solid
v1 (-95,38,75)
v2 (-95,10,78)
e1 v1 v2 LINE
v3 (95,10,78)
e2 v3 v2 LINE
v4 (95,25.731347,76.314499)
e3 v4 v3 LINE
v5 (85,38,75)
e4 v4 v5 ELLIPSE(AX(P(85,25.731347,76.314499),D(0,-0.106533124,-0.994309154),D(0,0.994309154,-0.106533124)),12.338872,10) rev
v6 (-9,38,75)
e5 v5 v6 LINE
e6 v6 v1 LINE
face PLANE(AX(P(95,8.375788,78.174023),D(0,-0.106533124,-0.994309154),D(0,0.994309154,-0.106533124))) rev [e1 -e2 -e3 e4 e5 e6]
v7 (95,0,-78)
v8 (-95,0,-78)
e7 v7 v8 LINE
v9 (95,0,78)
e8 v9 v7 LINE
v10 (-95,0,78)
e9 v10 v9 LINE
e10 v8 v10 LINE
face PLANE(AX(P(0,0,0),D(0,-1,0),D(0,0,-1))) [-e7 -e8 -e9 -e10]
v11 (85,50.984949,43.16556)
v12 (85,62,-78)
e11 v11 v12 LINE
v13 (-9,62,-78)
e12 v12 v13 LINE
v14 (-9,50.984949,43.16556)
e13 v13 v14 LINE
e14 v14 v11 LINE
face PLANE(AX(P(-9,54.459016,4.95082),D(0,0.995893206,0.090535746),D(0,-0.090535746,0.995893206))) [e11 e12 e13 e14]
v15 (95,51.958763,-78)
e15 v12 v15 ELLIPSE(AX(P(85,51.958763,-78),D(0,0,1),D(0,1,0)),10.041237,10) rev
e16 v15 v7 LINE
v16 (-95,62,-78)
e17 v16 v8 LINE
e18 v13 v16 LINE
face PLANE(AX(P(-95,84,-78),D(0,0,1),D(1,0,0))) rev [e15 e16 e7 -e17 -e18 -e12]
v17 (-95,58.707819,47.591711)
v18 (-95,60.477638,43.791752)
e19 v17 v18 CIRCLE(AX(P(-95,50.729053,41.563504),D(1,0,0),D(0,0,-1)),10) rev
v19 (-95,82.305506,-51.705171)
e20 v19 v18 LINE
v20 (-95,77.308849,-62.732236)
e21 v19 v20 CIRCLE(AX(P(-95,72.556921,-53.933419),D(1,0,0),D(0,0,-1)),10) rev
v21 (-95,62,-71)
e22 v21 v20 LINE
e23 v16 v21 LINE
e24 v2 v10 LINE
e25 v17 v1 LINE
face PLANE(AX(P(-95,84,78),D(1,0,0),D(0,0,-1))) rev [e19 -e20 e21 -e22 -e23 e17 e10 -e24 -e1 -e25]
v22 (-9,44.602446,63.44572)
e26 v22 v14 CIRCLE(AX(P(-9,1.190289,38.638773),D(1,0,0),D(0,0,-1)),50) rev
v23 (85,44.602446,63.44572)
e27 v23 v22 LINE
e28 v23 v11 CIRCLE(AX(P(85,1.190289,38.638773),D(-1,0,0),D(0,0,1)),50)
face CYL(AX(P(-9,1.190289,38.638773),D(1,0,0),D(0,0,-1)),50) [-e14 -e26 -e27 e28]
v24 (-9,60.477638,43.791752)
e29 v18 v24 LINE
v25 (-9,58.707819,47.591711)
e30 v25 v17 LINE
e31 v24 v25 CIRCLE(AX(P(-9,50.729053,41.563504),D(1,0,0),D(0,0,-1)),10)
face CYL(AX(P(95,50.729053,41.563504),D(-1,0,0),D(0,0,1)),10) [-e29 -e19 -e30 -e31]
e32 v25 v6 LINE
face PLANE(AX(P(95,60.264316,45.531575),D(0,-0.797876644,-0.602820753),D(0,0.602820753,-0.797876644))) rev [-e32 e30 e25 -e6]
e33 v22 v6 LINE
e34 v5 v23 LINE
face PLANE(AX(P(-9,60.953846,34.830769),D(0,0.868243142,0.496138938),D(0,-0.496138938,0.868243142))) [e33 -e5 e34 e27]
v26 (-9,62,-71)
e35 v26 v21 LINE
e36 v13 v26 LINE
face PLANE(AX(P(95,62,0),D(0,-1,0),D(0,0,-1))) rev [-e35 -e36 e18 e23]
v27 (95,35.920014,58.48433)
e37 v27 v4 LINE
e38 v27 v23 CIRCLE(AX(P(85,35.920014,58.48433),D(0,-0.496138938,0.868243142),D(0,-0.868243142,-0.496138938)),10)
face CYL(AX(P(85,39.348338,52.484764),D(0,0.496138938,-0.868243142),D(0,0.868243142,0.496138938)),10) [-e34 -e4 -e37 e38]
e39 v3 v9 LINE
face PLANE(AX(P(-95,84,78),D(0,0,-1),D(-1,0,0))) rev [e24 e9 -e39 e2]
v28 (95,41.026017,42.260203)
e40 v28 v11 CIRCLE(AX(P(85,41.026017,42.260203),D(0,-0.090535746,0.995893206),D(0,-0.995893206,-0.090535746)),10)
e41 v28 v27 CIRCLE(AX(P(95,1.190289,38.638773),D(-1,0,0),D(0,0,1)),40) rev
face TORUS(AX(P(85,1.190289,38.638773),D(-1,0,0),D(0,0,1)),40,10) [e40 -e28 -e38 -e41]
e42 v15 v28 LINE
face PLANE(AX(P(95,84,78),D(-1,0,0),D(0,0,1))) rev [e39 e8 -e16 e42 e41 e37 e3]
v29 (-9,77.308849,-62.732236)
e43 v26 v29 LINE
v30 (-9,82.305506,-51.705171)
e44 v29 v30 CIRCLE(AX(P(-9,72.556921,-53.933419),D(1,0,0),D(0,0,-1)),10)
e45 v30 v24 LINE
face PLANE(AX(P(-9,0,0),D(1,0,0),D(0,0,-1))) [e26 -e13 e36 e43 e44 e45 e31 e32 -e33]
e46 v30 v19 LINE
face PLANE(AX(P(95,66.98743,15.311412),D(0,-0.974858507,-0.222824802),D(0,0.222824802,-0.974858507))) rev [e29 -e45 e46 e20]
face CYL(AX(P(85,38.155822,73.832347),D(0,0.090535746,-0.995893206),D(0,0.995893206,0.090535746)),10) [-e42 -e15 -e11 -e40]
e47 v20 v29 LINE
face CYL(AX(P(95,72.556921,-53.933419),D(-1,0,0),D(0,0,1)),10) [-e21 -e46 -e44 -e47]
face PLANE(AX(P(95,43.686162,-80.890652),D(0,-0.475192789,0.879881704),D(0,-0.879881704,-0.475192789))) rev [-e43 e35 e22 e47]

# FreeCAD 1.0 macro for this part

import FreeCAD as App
import Part
import Sketcher
from FreeCAD import Vector
Q = App.Units.Quantity


def edges_at(feature, points):
    """Names of the edges that pass closest to the given points."""
    edges = feature.Shape.Edges
    near = lambda p: min(range(len(edges)), key=lambda i: edges[i].distToShape(Part.Vertex(*p))[0])
    return sorted({f"Edge{near(p) + 1}" for p in points})

doc = App.newDocument("Part")
body = doc.addObject("PartDesign::Body", "Body")

sketch1 = body.newObject("Sketcher::SketchObject", "Sketch")
sketch1.AttachmentSupport = (doc.getObject("XZ_Plane"), [""])
sketch1.MapMode = "FlatFace"
sketch1.addGeometry([
    Part.LineSegment(Vector(-95, -78, 0), Vector(-95, 78, 0)),
    Part.LineSegment(Vector(-95, 78, 0), Vector(95, 78, 0)),
    Part.LineSegment(Vector(95, 78, 0), Vector(95, -78, 0)),
    Part.LineSegment(Vector(95, -78, 0), Vector(-95, -78, 0)),
], False)
sketch1.addConstraint([
    Sketcher.Constraint("Coincident", 0, 2, 1, 1),
    Sketcher.Constraint("Coincident", 1, 2, 2, 1),
    Sketcher.Constraint("Coincident", 2, 2, 3, 1),
    Sketcher.Constraint("Coincident", 3, 2, 0, 1),
    Sketcher.Constraint("Vertical", 0),
    Sketcher.Constraint("Horizontal", 1),
    Sketcher.Constraint("Vertical", 2),
    Sketcher.Constraint("Horizontal", 3),
    Sketcher.Constraint("Symmetric", 0, 2, 2, 2, -1, 1),
    Sketcher.Constraint("DistanceX", 1, 1, 1, 2, Q("190 mm")),
    Sketcher.Constraint("DistanceY", 0, 1, 0, 2, Q("156 mm")),
])
pad1 = body.newObject("PartDesign::Pad", "Pad")
pad1.Profile = sketch1
pad1.Length = 84
pad1.Reversed = True

sketch2 = body.newObject("Sketcher::SketchObject", "Sketch001")
sketch2.AttachmentSupport = (doc.getObject("YZ_Plane"), [""])
sketch2.MapMode = "FlatFace"
sketch2.AttachmentOffset = App.Placement(Vector(0, 0, -95), App.Rotation())
sketch2.addGeometry([
    Part.LineSegment(Vector(84, -78, 0), Vector(62, -78, 0)),
    Part.LineSegment(Vector(62, -78, 0), Vector(62, -71, 0)),
    Part.LineSegment(Vector(62, -71, 0), Vector(84, -59, 0)),
    Part.LineSegment(Vector(84, -59, 0), Vector(84, -78, 0)),
    Part.LineSegment(Vector(84, 78, 0), Vector(84, -59, 0)),
    Part.LineSegment(Vector(84, -59, 0), Vector(60, 46, 0)),
    Part.LineSegment(Vector(60, 46, 0), Vector(38, 75, 0)),
    Part.LineSegment(Vector(38, 75, 0), Vector(10, 78, 0)),
    Part.LineSegment(Vector(10, 78, 0), Vector(84, 78, 0)),
], False)
sketch2.addConstraint([
    Sketcher.Constraint("Coincident", 0, 2, 1, 1),
    Sketcher.Constraint("Coincident", 1, 2, 2, 1),
    Sketcher.Constraint("Coincident", 2, 2, 3, 1),
    Sketcher.Constraint("Coincident", 3, 2, 0, 1),
    Sketcher.Constraint("Coincident", 4, 2, 5, 1),
    Sketcher.Constraint("Coincident", 5, 2, 6, 1),
    Sketcher.Constraint("Coincident", 6, 2, 7, 1),
    Sketcher.Constraint("Coincident", 7, 2, 8, 1),
    Sketcher.Constraint("Coincident", 8, 2, 4, 1),
    Sketcher.Constraint("Horizontal", 0),
    Sketcher.Constraint("Vertical", 1),
    Sketcher.Constraint("Vertical", 3),
    Sketcher.Constraint("Vertical", 4),
    Sketcher.Constraint("Horizontal", 8),
    Sketcher.Constraint("Coincident", 4, 2, 2, 2),
    Sketcher.Constraint("DistanceX", 0, 2, 0, 1, Q("22 mm")),
    Sketcher.Constraint("DistanceX", 8, 1, 8, 2, Q("74 mm")),
    Sketcher.Constraint("DistanceY", 1, 1, 1, 2, Q("7 mm")),
    Sketcher.Constraint("DistanceX", -1, 1, 0, 2, Q("62 mm")),
    Sketcher.Constraint("DistanceY", 0, 2, -1, 1, Q("78 mm")),
    Sketcher.Constraint("DistanceX", -1, 1, 5, 2, Q("60 mm")),
    Sketcher.Constraint("DistanceX", -1, 1, 6, 2, Q("38 mm")),
    Sketcher.Constraint("DistanceY", -1, 1, 6, 2, Q("75 mm")),
    Sketcher.Constraint("DistanceY", -1, 1, 7, 2, Q("78 mm")),
    Sketcher.Constraint("DistanceY", 2, 2, 5, 2, Q("105 mm")),
    Sketcher.Constraint("Distance", 2, Q("25.003361 mm")),
])
pocket1 = body.newObject("PartDesign::Pocket", "Pocket")
pocket1.Profile = sketch2
pocket1.Type = "ThroughAll"
pocket1.Reversed = True

sketch3 = body.newObject("Sketcher::SketchObject", "Sketch002")
sketch3.AttachmentSupport = (doc.getObject("YZ_Plane"), [""])
sketch3.MapMode = "FlatFace"
sketch3.AttachmentOffset = App.Placement(Vector(0, 0, 95), App.Rotation())
sketch3.addGeometry([
    Part.LineSegment(Vector(38, 75, 0), Vector(50, 54, 0)),
    Part.LineSegment(Vector(50, 54, 0), Vector(62, -78, 0)),
    Part.LineSegment(Vector(62, -78, 0), Vector(62, -71, 0)),
    Part.LineSegment(Vector(62, -71, 0), Vector(84, -59, 0)),
    Part.LineSegment(Vector(84, -59, 0), Vector(60, 46, 0)),
    Part.LineSegment(Vector(60, 46, 0), Vector(38, 75, 0)),
], False)
sketch3.addConstraint([
    Sketcher.Constraint("Coincident", 0, 2, 1, 1),
    Sketcher.Constraint("Coincident", 1, 2, 2, 1),
    Sketcher.Constraint("Coincident", 2, 2, 3, 1),
    Sketcher.Constraint("Coincident", 3, 2, 4, 1),
    Sketcher.Constraint("Coincident", 4, 2, 5, 1),
    Sketcher.Constraint("Coincident", 5, 2, 0, 1),
    Sketcher.Constraint("Vertical", 2),
    Sketcher.Constraint("DistanceY", 2, 1, 2, 2, Q("7 mm")),
    Sketcher.Constraint("DistanceX", -1, 1, 0, 2, Q("50 mm")),
    Sketcher.Constraint("DistanceY", -1, 1, 0, 2, Q("54 mm")),
    Sketcher.Constraint("DistanceX", -1, 1, 1, 2, Q("62 mm")),
    Sketcher.Constraint("DistanceY", 1, 2, -1, 1, Q("78 mm")),
    Sketcher.Constraint("DistanceX", -1, 1, 3, 2, Q("84 mm")),
    Sketcher.Constraint("DistanceX", -1, 1, 4, 2, Q("60 mm")),
    Sketcher.Constraint("DistanceX", -1, 1, 5, 2, Q("38 mm")),
    Sketcher.Constraint("DistanceY", -1, 1, 5, 2, Q("75 mm")),
    Sketcher.Constraint("DistanceY", 3, 2, 4, 2, Q("105 mm")),
    Sketcher.Constraint("Distance", 3, Q("25.003361 mm")),
])
pocket2 = body.newObject("PartDesign::Pocket", "Pocket001")
pocket2.Profile = sketch3
pocket2.Length = 104
doc.recompute()

fillet = body.newObject("PartDesign::Fillet", "Fillet")
fillet.Base = (pocket2, edges_at(pocket2, [(43, 50, 54)]))
fillet.Radius = 50
doc.recompute()

fillet2 = body.newObject("PartDesign::Fillet", "Fillet001")
fillet2.Base = (fillet, edges_at(fillet, [(-52, 84, -59.119)]))
fillet2.Radius = 10
doc.recompute()

fillet3 = body.newObject("PartDesign::Fillet", "Fillet002")
fillet3.Base = (fillet2, edges_at(fillet2, [
    (-52, 60, 45.881),
    (95, 56.492, -17.417),
    (95, 41.301, 69.223),
    (95, 48.884, 53.649),
]))
fillet3.Radius = 10

doc.recompute()
